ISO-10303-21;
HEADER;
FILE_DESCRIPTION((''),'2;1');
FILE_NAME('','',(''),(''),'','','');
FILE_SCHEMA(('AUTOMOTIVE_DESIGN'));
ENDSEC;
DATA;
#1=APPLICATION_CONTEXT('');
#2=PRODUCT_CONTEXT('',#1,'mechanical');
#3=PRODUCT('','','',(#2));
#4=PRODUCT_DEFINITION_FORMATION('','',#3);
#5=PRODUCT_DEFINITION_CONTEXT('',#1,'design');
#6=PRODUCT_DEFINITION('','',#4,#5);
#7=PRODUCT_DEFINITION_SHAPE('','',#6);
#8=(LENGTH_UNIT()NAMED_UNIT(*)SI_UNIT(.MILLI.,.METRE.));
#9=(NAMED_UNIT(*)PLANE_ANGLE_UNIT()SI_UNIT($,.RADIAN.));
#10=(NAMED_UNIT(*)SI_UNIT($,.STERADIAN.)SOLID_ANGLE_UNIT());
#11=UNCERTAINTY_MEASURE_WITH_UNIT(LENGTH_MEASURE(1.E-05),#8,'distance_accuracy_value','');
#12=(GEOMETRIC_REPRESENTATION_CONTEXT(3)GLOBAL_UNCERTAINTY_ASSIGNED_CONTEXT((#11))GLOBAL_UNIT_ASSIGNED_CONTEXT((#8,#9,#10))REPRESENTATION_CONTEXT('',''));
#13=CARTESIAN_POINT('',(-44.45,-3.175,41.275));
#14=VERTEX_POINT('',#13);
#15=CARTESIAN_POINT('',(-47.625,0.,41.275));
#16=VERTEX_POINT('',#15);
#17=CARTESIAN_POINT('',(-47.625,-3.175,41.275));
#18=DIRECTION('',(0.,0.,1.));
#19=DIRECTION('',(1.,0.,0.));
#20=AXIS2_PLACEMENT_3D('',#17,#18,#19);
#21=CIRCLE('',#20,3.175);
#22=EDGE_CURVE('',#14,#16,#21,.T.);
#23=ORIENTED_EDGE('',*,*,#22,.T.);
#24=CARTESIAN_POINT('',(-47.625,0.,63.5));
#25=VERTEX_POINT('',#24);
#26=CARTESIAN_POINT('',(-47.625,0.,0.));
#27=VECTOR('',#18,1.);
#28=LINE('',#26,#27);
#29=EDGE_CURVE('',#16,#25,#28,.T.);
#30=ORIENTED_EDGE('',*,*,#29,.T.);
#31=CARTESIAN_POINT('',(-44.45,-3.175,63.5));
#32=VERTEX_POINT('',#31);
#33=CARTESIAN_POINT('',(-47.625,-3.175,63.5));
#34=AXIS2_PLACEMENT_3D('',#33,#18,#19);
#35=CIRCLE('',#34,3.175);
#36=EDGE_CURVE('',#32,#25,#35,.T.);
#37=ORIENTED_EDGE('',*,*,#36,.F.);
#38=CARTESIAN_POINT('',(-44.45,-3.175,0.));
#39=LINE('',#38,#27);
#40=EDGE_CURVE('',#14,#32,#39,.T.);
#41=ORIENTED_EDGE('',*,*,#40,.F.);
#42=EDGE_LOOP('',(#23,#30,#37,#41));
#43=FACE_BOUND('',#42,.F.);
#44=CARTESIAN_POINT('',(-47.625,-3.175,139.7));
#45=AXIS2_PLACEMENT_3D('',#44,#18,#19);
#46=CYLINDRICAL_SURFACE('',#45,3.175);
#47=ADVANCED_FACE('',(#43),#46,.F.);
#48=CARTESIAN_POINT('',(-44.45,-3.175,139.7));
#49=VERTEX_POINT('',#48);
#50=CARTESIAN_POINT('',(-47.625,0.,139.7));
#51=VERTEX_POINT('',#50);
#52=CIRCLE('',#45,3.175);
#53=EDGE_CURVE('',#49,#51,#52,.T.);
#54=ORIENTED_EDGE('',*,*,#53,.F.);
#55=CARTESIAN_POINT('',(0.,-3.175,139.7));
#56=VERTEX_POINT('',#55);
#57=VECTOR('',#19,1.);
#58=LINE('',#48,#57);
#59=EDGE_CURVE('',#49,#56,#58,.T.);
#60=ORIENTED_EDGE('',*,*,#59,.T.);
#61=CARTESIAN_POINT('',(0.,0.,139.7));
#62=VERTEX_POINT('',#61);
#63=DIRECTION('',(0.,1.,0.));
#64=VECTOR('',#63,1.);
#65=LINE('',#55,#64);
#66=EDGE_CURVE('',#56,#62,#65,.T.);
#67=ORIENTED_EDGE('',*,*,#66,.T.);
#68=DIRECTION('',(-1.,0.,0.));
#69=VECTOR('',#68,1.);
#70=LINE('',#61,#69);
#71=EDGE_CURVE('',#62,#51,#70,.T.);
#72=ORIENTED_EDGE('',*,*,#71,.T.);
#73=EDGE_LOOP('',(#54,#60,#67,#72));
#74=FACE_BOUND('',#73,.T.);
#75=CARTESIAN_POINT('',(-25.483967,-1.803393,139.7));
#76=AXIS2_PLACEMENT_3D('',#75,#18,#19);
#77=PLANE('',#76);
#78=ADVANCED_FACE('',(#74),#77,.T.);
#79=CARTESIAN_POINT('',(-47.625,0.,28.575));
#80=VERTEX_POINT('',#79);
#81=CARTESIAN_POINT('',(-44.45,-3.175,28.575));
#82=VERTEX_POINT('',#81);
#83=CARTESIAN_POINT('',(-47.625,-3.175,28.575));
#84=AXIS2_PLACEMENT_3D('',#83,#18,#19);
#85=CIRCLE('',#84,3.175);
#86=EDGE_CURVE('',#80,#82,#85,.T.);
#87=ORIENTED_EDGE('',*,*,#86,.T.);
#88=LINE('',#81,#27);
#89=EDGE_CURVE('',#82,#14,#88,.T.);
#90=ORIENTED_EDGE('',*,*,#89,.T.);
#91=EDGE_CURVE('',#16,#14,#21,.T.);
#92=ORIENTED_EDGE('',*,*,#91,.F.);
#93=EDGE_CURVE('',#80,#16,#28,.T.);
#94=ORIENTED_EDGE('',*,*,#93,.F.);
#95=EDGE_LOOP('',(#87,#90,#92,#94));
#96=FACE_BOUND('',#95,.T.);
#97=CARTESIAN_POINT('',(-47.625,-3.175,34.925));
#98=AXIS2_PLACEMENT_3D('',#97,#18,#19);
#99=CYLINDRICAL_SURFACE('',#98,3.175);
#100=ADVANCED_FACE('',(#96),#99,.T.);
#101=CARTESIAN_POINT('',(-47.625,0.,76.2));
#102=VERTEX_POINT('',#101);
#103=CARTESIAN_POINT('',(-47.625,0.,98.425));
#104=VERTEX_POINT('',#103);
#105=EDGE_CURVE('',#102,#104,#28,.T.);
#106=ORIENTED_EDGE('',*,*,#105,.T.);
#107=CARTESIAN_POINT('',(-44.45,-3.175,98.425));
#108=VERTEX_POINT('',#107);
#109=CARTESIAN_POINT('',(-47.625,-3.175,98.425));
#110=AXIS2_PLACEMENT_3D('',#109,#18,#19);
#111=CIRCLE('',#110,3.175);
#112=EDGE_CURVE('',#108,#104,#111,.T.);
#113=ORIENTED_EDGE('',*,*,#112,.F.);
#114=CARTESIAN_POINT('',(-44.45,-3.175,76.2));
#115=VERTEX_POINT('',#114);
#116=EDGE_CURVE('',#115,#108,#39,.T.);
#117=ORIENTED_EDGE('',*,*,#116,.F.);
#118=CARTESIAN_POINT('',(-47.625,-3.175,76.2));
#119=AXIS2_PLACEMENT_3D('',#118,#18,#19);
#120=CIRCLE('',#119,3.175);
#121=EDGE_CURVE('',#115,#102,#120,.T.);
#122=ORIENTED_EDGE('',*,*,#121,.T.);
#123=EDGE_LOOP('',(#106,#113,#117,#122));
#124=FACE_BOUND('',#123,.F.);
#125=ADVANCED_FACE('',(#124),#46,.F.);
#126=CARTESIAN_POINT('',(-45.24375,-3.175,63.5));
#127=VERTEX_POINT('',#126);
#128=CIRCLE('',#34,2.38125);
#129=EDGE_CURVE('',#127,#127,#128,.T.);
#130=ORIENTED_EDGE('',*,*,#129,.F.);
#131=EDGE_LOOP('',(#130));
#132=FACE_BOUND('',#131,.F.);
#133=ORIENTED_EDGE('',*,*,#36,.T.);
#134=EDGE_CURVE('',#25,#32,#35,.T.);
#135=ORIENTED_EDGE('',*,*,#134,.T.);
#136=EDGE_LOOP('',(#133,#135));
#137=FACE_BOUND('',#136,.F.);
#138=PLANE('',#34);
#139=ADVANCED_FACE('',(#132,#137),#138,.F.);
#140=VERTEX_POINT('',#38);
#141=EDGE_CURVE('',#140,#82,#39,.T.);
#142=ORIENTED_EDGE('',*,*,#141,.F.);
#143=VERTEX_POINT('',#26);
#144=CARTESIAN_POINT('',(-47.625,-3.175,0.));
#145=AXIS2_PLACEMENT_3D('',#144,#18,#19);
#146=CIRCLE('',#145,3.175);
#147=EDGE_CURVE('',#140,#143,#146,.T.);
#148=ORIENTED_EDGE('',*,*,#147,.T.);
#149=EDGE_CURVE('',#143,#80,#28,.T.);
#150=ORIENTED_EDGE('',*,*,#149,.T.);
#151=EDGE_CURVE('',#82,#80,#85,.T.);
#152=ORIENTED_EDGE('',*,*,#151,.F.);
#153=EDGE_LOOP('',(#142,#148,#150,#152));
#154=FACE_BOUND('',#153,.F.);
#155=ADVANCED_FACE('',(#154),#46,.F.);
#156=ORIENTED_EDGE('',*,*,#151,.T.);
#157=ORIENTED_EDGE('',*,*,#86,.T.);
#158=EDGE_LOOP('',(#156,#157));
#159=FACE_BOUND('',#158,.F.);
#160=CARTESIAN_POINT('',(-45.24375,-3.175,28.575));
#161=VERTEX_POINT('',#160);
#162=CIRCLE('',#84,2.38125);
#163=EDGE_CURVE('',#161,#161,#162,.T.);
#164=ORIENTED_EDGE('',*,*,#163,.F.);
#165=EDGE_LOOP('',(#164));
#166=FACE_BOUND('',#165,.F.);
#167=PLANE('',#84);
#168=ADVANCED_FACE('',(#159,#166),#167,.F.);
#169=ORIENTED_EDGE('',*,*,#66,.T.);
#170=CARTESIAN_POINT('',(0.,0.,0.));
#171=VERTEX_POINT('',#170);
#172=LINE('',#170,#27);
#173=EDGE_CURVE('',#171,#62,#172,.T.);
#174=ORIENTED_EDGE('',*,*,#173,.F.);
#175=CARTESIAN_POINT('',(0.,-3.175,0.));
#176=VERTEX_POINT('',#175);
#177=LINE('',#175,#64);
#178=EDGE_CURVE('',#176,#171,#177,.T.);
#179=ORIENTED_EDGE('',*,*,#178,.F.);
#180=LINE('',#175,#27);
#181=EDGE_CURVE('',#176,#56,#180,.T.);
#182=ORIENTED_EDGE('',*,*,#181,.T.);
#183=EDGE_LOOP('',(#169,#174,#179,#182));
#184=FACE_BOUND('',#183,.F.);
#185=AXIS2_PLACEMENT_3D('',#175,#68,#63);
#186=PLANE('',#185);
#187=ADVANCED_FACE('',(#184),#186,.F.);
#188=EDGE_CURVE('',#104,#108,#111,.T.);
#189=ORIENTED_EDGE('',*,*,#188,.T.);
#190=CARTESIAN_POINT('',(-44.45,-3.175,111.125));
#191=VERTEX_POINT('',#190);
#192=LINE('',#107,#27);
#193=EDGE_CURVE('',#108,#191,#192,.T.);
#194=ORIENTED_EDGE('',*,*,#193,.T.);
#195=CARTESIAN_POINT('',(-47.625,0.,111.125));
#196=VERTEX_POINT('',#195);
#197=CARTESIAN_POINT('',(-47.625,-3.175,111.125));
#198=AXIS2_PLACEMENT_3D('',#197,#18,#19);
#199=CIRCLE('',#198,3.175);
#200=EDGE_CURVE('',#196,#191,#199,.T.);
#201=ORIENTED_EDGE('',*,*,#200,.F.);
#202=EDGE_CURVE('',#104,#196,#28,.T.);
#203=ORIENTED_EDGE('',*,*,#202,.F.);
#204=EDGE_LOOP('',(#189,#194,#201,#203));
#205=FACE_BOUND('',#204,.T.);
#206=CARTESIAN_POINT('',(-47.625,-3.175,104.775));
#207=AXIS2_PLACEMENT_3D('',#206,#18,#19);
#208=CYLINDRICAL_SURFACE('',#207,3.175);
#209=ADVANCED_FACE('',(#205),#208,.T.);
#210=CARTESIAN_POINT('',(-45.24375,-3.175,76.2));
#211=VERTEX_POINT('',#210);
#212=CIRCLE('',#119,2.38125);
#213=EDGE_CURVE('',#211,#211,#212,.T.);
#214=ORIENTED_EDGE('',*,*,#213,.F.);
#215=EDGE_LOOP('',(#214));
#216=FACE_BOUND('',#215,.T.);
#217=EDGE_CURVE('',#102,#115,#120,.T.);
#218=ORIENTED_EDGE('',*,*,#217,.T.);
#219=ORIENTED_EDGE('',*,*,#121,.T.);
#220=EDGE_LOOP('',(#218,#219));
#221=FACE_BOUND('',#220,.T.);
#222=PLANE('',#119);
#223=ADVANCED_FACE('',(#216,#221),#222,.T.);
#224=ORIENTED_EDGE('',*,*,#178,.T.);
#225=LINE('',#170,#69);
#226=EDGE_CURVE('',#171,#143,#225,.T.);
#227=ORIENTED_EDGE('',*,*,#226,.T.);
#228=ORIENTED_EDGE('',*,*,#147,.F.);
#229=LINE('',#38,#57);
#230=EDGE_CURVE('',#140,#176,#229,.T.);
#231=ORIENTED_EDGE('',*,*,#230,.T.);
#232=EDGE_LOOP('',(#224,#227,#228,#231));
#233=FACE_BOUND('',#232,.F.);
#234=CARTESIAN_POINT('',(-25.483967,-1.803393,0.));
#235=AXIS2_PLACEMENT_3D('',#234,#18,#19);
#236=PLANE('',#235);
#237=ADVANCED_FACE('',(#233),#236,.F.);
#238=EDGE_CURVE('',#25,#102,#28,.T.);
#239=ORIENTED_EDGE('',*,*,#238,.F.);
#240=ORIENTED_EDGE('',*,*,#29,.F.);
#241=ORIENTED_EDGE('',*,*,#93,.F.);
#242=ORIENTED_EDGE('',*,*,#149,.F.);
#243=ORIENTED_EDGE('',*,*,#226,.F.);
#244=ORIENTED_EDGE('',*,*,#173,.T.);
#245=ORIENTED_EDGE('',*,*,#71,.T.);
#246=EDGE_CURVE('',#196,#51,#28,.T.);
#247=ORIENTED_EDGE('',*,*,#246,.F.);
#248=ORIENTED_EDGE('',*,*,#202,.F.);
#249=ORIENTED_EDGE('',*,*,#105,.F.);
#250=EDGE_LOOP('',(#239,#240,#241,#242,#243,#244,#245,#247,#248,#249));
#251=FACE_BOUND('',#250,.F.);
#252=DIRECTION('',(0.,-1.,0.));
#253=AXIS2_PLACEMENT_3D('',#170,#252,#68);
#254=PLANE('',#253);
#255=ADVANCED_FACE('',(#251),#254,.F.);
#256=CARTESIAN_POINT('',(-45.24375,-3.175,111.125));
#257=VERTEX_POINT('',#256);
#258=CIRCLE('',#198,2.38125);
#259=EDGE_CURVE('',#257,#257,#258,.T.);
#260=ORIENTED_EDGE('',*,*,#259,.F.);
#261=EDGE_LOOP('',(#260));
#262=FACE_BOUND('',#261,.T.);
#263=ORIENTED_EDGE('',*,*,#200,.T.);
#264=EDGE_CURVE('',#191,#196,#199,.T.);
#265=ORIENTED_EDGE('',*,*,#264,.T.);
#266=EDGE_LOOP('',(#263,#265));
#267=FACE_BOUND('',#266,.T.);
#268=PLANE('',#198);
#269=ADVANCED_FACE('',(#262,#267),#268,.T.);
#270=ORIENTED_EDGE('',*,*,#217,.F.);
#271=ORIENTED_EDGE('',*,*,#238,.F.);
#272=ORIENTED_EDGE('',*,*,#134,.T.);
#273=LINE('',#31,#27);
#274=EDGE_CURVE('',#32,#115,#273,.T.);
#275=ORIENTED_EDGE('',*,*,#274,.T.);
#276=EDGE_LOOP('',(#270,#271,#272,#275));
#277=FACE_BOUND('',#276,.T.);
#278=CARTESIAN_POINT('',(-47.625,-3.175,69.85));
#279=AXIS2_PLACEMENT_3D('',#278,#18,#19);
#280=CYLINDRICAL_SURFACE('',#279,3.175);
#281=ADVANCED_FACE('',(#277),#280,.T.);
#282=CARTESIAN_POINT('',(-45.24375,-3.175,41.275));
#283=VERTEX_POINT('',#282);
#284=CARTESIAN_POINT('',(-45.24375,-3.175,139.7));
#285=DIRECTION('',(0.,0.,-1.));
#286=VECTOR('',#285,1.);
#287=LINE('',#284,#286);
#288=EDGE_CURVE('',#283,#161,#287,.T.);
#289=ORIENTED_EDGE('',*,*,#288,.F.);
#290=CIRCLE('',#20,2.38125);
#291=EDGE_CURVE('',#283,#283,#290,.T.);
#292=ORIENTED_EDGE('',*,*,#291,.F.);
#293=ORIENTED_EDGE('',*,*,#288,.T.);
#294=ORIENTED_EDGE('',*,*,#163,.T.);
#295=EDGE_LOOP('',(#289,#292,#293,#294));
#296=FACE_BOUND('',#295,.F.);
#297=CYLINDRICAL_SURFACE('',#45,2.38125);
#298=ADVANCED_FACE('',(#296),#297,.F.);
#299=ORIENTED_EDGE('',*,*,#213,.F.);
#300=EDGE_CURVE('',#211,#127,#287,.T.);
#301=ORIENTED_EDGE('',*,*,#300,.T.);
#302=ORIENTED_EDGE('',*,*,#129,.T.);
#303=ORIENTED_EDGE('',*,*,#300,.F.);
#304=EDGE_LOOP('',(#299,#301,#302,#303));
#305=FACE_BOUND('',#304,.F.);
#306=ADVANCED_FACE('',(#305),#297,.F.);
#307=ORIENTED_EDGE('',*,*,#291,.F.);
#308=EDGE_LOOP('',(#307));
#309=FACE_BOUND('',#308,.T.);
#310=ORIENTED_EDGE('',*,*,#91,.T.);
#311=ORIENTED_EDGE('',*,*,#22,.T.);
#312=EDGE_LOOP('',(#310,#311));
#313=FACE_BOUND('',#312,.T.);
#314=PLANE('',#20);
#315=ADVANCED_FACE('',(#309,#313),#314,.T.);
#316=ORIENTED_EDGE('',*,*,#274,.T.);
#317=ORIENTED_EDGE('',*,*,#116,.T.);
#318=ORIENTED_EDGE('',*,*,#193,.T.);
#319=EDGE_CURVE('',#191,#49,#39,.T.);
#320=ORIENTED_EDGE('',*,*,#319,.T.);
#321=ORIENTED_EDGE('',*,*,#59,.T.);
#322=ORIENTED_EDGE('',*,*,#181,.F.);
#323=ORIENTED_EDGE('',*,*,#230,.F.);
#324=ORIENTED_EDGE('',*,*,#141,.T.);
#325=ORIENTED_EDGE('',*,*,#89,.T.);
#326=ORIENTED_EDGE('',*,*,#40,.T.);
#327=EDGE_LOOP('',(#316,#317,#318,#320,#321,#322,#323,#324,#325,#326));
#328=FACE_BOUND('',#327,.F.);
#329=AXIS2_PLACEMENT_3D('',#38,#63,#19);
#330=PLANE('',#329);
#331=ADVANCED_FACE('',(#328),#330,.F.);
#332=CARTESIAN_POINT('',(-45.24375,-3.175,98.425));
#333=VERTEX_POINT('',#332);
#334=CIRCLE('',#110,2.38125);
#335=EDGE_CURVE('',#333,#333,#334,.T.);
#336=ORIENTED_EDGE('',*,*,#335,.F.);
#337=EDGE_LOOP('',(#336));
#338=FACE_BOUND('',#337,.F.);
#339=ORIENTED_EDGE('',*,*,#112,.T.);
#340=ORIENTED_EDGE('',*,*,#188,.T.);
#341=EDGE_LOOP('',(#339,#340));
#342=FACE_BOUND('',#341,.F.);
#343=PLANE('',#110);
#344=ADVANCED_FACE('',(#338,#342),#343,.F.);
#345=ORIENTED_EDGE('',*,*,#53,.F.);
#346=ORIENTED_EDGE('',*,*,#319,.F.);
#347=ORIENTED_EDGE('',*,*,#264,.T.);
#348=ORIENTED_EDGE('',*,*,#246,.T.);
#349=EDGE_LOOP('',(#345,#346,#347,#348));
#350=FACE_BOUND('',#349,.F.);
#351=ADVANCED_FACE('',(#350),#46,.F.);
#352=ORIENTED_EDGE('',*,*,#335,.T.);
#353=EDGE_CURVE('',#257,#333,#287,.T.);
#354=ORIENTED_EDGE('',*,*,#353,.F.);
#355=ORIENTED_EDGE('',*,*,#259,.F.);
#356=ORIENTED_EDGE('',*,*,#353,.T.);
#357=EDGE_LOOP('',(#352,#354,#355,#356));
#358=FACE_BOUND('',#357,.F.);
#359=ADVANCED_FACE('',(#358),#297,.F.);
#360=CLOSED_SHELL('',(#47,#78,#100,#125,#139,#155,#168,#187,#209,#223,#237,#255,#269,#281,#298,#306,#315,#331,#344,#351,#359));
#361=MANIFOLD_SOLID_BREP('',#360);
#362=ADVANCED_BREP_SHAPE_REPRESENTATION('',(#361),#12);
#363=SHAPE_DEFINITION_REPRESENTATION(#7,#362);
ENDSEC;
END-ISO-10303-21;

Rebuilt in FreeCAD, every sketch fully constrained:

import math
import FreeCAD as App
import Part
import Sketcher

V = App.Vector
Q = App.Units.Quantity

doc = App.newDocument("Part")
body = doc.addObject("PartDesign::Body", "Body")

# Sketch on XY plane
sketch1 = doc.addObject("Sketcher::SketchObject", "Sketch")
body.addObject(sketch1)
sketch1.AttachmentSupport = (doc.XY_Plane, [""])
sketch1.MapMode = "FlatFace"
sketch1.addGeometry([
    Part.LineSegment(V(0, -3.175, 0), V(0, 0, 0)),
    Part.LineSegment(V(0, 0, 0), V(-47.625, 0, 0)),
    Part.ArcOfCircle(Part.Circle(V(-47.625, -3.175, 0), V(0, 0, 1), 3.175), math.radians(90), math.radians(360)),
    Part.LineSegment(V(-44.45, -3.175, 0), V(0, -3.175, 0)),
], False)
sketch1.addConstraint([
    Sketcher.Constraint("Coincident", 0, 2, 1, 1),
    Sketcher.Constraint("Tangent", 1, 2, 2, 1),
    Sketcher.Constraint("Coincident", 2, 2, 3, 1),
    Sketcher.Constraint("Coincident", 3, 2, 0, 1),
    Sketcher.Constraint("Vertical", 0),
    Sketcher.Constraint("Horizontal", 1),
    Sketcher.Constraint("Horizontal", 3),
    Sketcher.Constraint("Coincident", 0, 2, -1, 1),
    Sketcher.Constraint("Radius", 2, Q("0.125 in")),
    Sketcher.Constraint("DistanceX", 3, 1, 3, 2, Q("1.75 in")),
    Sketcher.Constraint("DistanceY", 0, 1, 0, 2, Q("0.125 in")),
])
pad1 = doc.addObject("PartDesign::Pad", "Pad")
body.addObject(pad1)
pad1.Profile = sketch1
pad1.Length = Q("5.5 in")

# Sketch on XY plane
sketch2 = doc.addObject("Sketcher::SketchObject", "Sketch001")
body.addObject(sketch2)
sketch2.AttachmentSupport = (doc.XY_Plane, [""])
sketch2.MapMode = "FlatFace"
sketch2.AttachmentOffset = App.Placement(V(0, 0, 5.5 * 25.4), App.Rotation())
sketch2.addGeometry([
    Part.ArcOfCircle(Part.Circle(V(-47.625, -3.175, 0), V(0, 0, 1), 3.175), math.radians(90), math.radians(360)),
    Part.ArcOfCircle(Part.Circle(V(-47.625, -3.175, 0), V(0, 0, 1), 3.175), math.radians(0), math.radians(90)),
], False)
sketch2.addConstraint([
    Sketcher.Constraint("Tangent", 0, 1, 1, 2),
    Sketcher.Constraint("Coincident", 1, 1, 0, 2),
    Sketcher.Constraint("PointOnObject", 0, 1, -1),
    Sketcher.Constraint("Horizontal", 0, 3, 1, 1),
    Sketcher.Constraint("Vertical", 1, 3, 0, 1),
    Sketcher.Constraint("Radius", 0, Q("0.125 in")),
    Sketcher.Constraint("DistanceX", 1, 1, -1, 1, Q("1.75 in")),
])
pocket1 = doc.addObject("PartDesign::Pocket", "Pocket")
body.addObject(pocket1)
pocket1.Profile = sketch2
pocket1.Type = "ThroughAll"

# Sketch on XY plane
sketch3 = doc.addObject("Sketcher::SketchObject", "Sketch002")
body.addObject(sketch3)
sketch3.AttachmentSupport = (doc.XY_Plane, [""])
sketch3.MapMode = "FlatFace"
sketch3.AttachmentOffset = App.Placement(V(0, 0, 4.125 * 25.4), App.Rotation())
sketch3.addGeometry(Part.Circle(V(-47.625, -3.175, 0), V(0, 0, 1), 3.175), False)
sketch3.addConstraint([
    Sketcher.Constraint("Diameter", 0, Q("0.25 in")),
    Sketcher.Constraint("DistanceX", 0, 3, -1, 1, Q("1.875 in")),
    Sketcher.Constraint("DistanceY", 0, 3, -1, 1, Q("0.125 in")),
])
pad2 = doc.addObject("PartDesign::Pad", "Pad001")
body.addObject(pad2)
pad2.Profile = sketch3
pad2.Length = Q("0.5 in")
pad2.Midplane = True

# Sketch on XY plane
sketch4 = doc.addObject("Sketcher::SketchObject", "Sketch003")
body.addObject(sketch4)
sketch4.AttachmentSupport = (doc.XY_Plane, [""])
sketch4.MapMode = "FlatFace"
sketch4.AttachmentOffset = App.Placement(V(0, 0, 2.75 * 25.4), App.Rotation())
sketch4.addGeometry(Part.Circle(V(-47.625, -3.175, 0), V(0, 0, 1), 3.175), False)
sketch4.addConstraint([
    Sketcher.Constraint("Diameter", 0, Q("0.25 in")),
    Sketcher.Constraint("DistanceX", 0, 3, -1, 1, Q("1.875 in")),
    Sketcher.Constraint("DistanceY", 0, 3, -1, 1, Q("0.125 in")),
])
pad3 = doc.addObject("PartDesign::Pad", "Pad002")
body.addObject(pad3)
pad3.Profile = sketch4
pad3.Length = Q("0.5 in")
pad3.Midplane = True

# Sketch on XY plane
sketch5 = doc.addObject("Sketcher::SketchObject", "Sketch004")
body.addObject(sketch5)
sketch5.AttachmentSupport = (doc.XY_Plane, [""])
sketch5.MapMode = "FlatFace"
sketch5.AttachmentOffset = App.Placement(V(0, 0, 1.375 * 25.4), App.Rotation())
sketch5.addGeometry(Part.Circle(V(-47.625, -3.175, 0), V(0, 0, 1), 3.175), False)
sketch5.addConstraint([
    Sketcher.Constraint("Diameter", 0, Q("0.25 in")),
    Sketcher.Constraint("DistanceX", 0, 3, -1, 1, Q("1.875 in")),
    Sketcher.Constraint("DistanceY", 0, 3, -1, 1, Q("0.125 in")),
])
pad4 = doc.addObject("PartDesign::Pad", "Pad003")
body.addObject(pad4)
pad4.Profile = sketch5
pad4.Length = Q("0.5 in")
pad4.Midplane = True

# Sketch on XY plane
sketch6 = doc.addObject("Sketcher::SketchObject", "Sketch005")
body.addObject(sketch6)
sketch6.AttachmentSupport = (doc.XY_Plane, [""])
sketch6.MapMode = "FlatFace"
sketch6.AttachmentOffset = App.Placement(V(0, 0, 5.5 * 25.4), App.Rotation())
sketch6.addGeometry(Part.Circle(V(-47.625, -3.175, 0), V(0, 0, 1), 2.38125), False)
sketch6.addConstraint([
    Sketcher.Constraint("Diameter", 0, Q("0.1875 in")),
    Sketcher.Constraint("DistanceX", 0, 3, -1, 1, Q("1.875 in")),
    Sketcher.Constraint("DistanceY", 0, 3, -1, 1, Q("0.125 in")),
])
pocket2 = doc.addObject("PartDesign::Pocket", "Pocket001")
body.addObject(pocket2)
pocket2.Profile = sketch6
pocket2.Type = "ThroughAll"

doc.recompute()
